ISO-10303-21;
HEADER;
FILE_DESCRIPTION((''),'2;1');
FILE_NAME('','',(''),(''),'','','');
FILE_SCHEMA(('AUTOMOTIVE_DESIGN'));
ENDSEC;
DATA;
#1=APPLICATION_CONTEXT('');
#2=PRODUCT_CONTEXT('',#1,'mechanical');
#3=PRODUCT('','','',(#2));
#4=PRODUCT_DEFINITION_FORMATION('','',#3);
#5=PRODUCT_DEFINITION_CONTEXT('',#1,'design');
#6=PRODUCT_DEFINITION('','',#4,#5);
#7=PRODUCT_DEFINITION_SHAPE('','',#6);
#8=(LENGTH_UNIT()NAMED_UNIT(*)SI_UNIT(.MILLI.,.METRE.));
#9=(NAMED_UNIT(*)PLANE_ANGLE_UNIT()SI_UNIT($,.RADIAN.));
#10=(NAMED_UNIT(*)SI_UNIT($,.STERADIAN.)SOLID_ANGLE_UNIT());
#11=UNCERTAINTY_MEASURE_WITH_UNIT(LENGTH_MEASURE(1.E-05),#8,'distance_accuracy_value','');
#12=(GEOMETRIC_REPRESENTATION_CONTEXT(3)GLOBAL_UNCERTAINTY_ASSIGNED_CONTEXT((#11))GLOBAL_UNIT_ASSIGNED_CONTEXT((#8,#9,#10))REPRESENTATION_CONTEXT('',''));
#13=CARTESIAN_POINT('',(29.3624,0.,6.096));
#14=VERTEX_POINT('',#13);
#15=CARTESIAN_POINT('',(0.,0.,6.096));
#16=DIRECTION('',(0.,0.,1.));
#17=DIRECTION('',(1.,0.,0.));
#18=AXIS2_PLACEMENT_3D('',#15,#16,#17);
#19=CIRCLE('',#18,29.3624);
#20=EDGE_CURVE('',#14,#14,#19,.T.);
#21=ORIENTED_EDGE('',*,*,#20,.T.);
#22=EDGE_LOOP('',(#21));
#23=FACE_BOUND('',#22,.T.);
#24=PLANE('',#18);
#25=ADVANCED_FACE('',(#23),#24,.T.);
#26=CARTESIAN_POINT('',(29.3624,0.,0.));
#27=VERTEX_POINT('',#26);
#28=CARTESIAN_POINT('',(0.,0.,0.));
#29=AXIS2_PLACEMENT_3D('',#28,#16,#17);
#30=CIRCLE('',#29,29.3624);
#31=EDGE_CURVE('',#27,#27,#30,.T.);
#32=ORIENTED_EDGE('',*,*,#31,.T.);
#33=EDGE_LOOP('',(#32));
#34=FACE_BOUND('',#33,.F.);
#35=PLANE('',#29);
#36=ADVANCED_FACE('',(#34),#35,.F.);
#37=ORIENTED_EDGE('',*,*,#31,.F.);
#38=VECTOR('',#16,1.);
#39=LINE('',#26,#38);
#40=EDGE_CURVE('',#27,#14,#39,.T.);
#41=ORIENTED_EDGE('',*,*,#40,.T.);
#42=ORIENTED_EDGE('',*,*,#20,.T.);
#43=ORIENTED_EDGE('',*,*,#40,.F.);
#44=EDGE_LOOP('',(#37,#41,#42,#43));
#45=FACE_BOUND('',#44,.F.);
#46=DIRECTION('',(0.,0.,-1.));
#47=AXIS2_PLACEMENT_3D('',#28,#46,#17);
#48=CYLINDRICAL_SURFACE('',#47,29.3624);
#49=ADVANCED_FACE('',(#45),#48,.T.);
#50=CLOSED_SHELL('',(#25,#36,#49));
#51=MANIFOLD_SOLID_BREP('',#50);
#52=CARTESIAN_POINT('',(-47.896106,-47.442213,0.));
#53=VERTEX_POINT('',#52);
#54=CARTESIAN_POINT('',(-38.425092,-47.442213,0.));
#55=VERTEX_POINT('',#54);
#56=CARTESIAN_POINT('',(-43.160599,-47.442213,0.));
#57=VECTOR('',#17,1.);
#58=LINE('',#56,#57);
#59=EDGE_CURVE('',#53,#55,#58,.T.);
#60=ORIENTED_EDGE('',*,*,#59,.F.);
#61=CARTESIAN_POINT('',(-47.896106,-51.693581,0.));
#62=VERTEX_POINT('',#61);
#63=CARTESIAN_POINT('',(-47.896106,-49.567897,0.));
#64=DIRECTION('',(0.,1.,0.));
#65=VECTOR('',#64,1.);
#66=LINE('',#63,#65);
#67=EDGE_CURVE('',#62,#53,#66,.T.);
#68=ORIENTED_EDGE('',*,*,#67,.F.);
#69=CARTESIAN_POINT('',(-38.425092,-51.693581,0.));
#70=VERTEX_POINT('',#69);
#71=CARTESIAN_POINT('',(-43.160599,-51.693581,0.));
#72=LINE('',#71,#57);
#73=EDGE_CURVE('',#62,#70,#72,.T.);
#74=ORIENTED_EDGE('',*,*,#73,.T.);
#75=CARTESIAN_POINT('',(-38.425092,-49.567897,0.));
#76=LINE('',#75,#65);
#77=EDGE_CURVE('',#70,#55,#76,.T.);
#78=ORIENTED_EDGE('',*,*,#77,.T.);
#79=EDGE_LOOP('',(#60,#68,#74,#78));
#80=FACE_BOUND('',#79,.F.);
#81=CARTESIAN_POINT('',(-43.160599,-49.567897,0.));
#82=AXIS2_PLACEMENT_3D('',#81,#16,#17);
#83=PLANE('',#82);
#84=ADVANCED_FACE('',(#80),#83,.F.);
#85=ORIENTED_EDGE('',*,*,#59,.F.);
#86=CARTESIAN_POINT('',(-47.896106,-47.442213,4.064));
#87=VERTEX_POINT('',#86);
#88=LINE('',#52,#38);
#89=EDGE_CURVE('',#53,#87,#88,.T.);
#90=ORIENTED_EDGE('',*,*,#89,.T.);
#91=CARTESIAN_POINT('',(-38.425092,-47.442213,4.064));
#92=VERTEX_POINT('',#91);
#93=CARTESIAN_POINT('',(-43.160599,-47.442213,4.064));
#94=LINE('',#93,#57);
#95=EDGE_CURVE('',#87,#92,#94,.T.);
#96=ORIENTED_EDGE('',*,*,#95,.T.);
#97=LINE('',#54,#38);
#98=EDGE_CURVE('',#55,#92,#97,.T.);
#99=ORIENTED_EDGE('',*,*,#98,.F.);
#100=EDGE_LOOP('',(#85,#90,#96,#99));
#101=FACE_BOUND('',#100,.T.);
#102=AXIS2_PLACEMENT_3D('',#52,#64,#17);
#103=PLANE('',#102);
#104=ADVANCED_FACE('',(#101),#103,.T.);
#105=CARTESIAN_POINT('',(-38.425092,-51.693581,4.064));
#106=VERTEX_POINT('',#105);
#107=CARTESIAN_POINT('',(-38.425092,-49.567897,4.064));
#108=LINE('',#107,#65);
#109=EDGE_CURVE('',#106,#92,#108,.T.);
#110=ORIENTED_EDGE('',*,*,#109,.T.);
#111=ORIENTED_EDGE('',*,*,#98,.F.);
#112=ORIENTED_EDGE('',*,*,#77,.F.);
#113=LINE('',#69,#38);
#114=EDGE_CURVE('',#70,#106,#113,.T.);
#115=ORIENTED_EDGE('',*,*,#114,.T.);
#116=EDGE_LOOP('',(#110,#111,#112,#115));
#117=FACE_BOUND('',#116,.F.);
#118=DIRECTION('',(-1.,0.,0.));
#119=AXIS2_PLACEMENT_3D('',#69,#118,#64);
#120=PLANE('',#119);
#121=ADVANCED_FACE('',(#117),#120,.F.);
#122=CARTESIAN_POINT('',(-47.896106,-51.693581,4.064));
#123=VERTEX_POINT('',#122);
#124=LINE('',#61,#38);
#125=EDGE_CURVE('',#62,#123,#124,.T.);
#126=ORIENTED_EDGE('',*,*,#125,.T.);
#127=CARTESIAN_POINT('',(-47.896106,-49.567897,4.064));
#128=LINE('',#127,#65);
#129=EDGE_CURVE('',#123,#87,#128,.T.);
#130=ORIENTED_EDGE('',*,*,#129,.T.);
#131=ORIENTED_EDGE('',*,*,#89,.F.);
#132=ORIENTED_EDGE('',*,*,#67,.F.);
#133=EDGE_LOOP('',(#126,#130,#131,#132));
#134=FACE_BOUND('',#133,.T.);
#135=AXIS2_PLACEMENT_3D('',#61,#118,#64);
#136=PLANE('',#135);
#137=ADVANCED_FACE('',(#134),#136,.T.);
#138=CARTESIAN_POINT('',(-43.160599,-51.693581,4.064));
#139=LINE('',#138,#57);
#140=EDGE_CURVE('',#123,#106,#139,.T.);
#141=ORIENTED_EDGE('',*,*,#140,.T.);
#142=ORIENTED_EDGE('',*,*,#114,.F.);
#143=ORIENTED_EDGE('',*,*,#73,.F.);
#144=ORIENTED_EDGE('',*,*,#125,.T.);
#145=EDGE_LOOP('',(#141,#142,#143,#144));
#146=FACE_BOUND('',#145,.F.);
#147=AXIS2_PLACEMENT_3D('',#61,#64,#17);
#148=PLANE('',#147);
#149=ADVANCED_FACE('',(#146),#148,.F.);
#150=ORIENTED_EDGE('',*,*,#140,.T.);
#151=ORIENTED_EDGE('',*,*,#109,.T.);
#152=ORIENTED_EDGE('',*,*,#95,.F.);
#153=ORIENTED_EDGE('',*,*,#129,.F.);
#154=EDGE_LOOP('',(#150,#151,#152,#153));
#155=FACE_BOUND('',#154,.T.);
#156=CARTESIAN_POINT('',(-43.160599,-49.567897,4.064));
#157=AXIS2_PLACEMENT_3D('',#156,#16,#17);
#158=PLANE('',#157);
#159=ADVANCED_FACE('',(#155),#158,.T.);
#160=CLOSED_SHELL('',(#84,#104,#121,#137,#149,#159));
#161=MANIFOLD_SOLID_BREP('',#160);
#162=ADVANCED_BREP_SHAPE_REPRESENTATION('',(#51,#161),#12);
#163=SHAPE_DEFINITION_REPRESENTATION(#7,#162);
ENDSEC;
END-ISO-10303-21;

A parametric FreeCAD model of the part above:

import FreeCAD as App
import Part
import Sketcher
Q = App.Units.Quantity


def add_polygon(sketch, points):
    """Adds a closed chain of lines whose ends are joined by coincident constraints."""
    first, n = sketch.GeometryCount, len(points)
    for a, b in zip(points, points[1:] + points[:1]):
        sketch.addGeometry(Part.LineSegment(App.Vector(*a, 0), App.Vector(*b, 0)), False)
    for i in range(n):
        sketch.addConstraint(Sketcher.Constraint("Coincident", first + i, 2, first + (i + 1) % n, 1))

doc = App.newDocument("Part")
body = doc.addObject("PartDesign::Body", "Body")

sketch1 = body.newObject("Sketcher::SketchObject", "Sketch")
sketch1.AttachmentSupport = (doc.getObject("XY_Plane"), [""])
sketch1.MapMode = "FlatFace"
sketch1.addGeometry(Part.Circle(App.Vector(0, 0, 0), App.Vector(0, 0, 1), 29.3624), False)
sketch1.addConstraint(Sketcher.Constraint("Coincident", 0, 3, -1, 1))
sketch1.addConstraint(Sketcher.Constraint("Diameter", 0, Q("2.312 in")))
pad1 = body.newObject("PartDesign::Pad", "Pad")
pad1.Profile = sketch1
pad1.Length = Q("0.24 in")
body2 = doc.addObject("PartDesign::Body", "Body001")

sketch2 = body2.newObject("Sketcher::SketchObject", "Sketch001")
sketch2.AttachmentSupport = (doc.getObject("XY_Plane001"), [""])
sketch2.MapMode = "FlatFace"
add_polygon(sketch2, [(-47.896106, -47.442213), (-47.896106, -51.693581), (-38.425092, -51.693581), (-38.425092, -47.442213)])
sketch2.addConstraint(Sketcher.Constraint("Vertical", 0))
sketch2.addConstraint(Sketcher.Constraint("Horizontal", 1))
sketch2.addConstraint(Sketcher.Constraint("Vertical", 2))
sketch2.addConstraint(Sketcher.Constraint("Horizontal", 3))
sketch2.addConstraint(Sketcher.Constraint("DistanceX", 1, 1, 1, 2, 9.471014))
sketch2.addConstraint(Sketcher.Constraint("DistanceY", 0, 2, 0, 1, 4.251368))
sketch2.addConstraint(Sketcher.Constraint("DistanceY", 0, 2, -1, 1, 51.693581))
sketch2.addConstraint(Sketcher.Constraint("DistanceX", 0, 2, -1, 1, 47.896106))
pad2 = body2.newObject("PartDesign::Pad", "Pad001")
pad2.Profile = sketch2
pad2.Length = Q("0.16 in")

doc.recompute()
